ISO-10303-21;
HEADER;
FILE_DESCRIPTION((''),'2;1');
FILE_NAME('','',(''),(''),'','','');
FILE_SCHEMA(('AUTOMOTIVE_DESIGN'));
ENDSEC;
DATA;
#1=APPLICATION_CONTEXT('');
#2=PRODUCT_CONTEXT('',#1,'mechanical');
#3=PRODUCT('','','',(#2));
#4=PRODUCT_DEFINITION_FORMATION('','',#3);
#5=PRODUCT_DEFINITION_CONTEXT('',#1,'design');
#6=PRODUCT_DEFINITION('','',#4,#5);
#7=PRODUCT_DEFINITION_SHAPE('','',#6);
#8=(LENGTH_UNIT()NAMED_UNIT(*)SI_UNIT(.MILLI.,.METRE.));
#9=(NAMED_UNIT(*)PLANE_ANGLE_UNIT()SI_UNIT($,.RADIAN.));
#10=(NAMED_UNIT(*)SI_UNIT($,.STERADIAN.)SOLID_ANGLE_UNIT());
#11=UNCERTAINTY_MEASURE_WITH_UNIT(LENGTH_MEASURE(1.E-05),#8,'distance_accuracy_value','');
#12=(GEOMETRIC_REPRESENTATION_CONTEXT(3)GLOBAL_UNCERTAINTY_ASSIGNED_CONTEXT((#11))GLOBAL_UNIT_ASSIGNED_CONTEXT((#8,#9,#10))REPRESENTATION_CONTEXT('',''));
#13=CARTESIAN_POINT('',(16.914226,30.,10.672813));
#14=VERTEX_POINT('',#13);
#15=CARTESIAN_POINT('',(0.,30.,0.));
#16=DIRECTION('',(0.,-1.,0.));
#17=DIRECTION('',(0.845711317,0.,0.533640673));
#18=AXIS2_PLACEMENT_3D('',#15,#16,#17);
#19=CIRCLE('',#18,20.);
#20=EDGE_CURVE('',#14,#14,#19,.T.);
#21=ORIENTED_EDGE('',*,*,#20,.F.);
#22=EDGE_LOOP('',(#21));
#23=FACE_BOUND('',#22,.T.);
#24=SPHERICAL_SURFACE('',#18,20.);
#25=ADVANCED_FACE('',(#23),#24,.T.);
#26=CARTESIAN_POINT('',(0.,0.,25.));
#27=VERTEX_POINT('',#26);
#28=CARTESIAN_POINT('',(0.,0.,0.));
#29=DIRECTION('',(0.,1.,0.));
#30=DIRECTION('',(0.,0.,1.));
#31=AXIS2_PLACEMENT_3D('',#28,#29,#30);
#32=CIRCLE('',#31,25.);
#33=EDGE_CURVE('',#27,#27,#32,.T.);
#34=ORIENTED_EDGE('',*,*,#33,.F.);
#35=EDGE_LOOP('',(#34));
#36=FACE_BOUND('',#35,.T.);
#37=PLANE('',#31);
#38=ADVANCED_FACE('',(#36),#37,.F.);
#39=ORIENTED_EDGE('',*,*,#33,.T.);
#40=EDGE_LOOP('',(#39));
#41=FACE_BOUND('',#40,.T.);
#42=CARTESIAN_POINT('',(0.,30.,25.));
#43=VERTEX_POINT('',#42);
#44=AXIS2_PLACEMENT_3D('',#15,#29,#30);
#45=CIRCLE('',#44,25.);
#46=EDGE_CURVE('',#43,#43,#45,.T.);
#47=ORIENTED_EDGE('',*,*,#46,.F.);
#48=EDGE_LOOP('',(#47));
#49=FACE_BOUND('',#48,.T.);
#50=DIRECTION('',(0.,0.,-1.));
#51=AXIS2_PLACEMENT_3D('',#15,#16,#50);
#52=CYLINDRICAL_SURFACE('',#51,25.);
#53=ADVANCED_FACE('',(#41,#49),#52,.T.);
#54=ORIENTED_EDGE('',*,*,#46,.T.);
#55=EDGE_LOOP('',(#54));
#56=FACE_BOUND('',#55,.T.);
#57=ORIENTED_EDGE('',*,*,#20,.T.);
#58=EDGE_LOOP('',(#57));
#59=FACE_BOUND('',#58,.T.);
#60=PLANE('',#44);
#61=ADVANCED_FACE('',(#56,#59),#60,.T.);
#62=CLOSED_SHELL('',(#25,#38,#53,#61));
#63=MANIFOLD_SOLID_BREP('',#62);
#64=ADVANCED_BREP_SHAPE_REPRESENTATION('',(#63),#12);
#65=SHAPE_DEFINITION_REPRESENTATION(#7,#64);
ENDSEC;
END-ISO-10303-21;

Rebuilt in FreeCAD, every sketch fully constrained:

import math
import FreeCAD as App
import Part
import Sketcher

doc = App.newDocument("Part")
body = doc.addObject("PartDesign::Body", "Body")

sketch1 = body.newObject("Sketcher::SketchObject", "Sketch")
sketch1.AttachmentSupport = (doc.getObject("XZ_Plane"), [""])
sketch1.MapMode = "FlatFace"
sketch1.addGeometry(Part.Circle(App.Vector(0, 0, 0), App.Vector(0, 0, 1), 25), False)
sketch1.addConstraint([
    Sketcher.Constraint("Coincident", 0, 3, -1, 1),
    Sketcher.Constraint("Diameter", 0, 50.0),
])
pad1 = body.newObject("PartDesign::Pad", "Pad")
pad1.Profile = sketch1
pad1.Length = 30
pad1.Reversed = True

sketch2 = body.newObject("Sketcher::SketchObject", "Sketch001")
sketch2.AttachmentSupport = (doc.getObject("XZ_Plane"), [""])
sketch2.MapMode = "FlatFace"
sketch2.AttachmentOffset = App.Placement(App.Vector(0, 0, -30), App.Rotation())
sketch2.addGeometry([
    Part.LineSegment(App.Vector(-10, -18, 0), App.Vector(10, 18, 0)),
    Part.ArcOfCircle(Part.Circle(App.Vector(0, 0, 0), App.Vector(0, 0, 1), 20), math.radians(-119), math.radians(61)),
], False)
sketch2.addGeometry(Part.LineSegment(App.Vector(-10, -18, 0), App.Vector(10, 18, 0)), True)
sketch2.addConstraint([
    Sketcher.Constraint("Coincident", 0, 1, 1, 1),
    Sketcher.Constraint("Coincident", 1, 2, 0, 2),
    Sketcher.Constraint("Coincident", 1, 3, -1, 1),
    Sketcher.Constraint("Coincident", 2, 1, 0, 1),
    Sketcher.Constraint("Coincident", 2, 2, 1, 2),
    Sketcher.Constraint("Radius", 1, 20.0),
    Sketcher.Constraint("DistanceY", 0, 1, 1, 2, 35.027311),
    Sketcher.Constraint("DistanceX", 0, 1, -1, 1, 9.657736),
])
revolution = body.newObject("PartDesign::Revolution", "Revolution")
revolution.Profile = sketch2
revolution.ReferenceAxis = (sketch2, ["Axis0"])
revolution.Angle = 180

doc.recompute()
